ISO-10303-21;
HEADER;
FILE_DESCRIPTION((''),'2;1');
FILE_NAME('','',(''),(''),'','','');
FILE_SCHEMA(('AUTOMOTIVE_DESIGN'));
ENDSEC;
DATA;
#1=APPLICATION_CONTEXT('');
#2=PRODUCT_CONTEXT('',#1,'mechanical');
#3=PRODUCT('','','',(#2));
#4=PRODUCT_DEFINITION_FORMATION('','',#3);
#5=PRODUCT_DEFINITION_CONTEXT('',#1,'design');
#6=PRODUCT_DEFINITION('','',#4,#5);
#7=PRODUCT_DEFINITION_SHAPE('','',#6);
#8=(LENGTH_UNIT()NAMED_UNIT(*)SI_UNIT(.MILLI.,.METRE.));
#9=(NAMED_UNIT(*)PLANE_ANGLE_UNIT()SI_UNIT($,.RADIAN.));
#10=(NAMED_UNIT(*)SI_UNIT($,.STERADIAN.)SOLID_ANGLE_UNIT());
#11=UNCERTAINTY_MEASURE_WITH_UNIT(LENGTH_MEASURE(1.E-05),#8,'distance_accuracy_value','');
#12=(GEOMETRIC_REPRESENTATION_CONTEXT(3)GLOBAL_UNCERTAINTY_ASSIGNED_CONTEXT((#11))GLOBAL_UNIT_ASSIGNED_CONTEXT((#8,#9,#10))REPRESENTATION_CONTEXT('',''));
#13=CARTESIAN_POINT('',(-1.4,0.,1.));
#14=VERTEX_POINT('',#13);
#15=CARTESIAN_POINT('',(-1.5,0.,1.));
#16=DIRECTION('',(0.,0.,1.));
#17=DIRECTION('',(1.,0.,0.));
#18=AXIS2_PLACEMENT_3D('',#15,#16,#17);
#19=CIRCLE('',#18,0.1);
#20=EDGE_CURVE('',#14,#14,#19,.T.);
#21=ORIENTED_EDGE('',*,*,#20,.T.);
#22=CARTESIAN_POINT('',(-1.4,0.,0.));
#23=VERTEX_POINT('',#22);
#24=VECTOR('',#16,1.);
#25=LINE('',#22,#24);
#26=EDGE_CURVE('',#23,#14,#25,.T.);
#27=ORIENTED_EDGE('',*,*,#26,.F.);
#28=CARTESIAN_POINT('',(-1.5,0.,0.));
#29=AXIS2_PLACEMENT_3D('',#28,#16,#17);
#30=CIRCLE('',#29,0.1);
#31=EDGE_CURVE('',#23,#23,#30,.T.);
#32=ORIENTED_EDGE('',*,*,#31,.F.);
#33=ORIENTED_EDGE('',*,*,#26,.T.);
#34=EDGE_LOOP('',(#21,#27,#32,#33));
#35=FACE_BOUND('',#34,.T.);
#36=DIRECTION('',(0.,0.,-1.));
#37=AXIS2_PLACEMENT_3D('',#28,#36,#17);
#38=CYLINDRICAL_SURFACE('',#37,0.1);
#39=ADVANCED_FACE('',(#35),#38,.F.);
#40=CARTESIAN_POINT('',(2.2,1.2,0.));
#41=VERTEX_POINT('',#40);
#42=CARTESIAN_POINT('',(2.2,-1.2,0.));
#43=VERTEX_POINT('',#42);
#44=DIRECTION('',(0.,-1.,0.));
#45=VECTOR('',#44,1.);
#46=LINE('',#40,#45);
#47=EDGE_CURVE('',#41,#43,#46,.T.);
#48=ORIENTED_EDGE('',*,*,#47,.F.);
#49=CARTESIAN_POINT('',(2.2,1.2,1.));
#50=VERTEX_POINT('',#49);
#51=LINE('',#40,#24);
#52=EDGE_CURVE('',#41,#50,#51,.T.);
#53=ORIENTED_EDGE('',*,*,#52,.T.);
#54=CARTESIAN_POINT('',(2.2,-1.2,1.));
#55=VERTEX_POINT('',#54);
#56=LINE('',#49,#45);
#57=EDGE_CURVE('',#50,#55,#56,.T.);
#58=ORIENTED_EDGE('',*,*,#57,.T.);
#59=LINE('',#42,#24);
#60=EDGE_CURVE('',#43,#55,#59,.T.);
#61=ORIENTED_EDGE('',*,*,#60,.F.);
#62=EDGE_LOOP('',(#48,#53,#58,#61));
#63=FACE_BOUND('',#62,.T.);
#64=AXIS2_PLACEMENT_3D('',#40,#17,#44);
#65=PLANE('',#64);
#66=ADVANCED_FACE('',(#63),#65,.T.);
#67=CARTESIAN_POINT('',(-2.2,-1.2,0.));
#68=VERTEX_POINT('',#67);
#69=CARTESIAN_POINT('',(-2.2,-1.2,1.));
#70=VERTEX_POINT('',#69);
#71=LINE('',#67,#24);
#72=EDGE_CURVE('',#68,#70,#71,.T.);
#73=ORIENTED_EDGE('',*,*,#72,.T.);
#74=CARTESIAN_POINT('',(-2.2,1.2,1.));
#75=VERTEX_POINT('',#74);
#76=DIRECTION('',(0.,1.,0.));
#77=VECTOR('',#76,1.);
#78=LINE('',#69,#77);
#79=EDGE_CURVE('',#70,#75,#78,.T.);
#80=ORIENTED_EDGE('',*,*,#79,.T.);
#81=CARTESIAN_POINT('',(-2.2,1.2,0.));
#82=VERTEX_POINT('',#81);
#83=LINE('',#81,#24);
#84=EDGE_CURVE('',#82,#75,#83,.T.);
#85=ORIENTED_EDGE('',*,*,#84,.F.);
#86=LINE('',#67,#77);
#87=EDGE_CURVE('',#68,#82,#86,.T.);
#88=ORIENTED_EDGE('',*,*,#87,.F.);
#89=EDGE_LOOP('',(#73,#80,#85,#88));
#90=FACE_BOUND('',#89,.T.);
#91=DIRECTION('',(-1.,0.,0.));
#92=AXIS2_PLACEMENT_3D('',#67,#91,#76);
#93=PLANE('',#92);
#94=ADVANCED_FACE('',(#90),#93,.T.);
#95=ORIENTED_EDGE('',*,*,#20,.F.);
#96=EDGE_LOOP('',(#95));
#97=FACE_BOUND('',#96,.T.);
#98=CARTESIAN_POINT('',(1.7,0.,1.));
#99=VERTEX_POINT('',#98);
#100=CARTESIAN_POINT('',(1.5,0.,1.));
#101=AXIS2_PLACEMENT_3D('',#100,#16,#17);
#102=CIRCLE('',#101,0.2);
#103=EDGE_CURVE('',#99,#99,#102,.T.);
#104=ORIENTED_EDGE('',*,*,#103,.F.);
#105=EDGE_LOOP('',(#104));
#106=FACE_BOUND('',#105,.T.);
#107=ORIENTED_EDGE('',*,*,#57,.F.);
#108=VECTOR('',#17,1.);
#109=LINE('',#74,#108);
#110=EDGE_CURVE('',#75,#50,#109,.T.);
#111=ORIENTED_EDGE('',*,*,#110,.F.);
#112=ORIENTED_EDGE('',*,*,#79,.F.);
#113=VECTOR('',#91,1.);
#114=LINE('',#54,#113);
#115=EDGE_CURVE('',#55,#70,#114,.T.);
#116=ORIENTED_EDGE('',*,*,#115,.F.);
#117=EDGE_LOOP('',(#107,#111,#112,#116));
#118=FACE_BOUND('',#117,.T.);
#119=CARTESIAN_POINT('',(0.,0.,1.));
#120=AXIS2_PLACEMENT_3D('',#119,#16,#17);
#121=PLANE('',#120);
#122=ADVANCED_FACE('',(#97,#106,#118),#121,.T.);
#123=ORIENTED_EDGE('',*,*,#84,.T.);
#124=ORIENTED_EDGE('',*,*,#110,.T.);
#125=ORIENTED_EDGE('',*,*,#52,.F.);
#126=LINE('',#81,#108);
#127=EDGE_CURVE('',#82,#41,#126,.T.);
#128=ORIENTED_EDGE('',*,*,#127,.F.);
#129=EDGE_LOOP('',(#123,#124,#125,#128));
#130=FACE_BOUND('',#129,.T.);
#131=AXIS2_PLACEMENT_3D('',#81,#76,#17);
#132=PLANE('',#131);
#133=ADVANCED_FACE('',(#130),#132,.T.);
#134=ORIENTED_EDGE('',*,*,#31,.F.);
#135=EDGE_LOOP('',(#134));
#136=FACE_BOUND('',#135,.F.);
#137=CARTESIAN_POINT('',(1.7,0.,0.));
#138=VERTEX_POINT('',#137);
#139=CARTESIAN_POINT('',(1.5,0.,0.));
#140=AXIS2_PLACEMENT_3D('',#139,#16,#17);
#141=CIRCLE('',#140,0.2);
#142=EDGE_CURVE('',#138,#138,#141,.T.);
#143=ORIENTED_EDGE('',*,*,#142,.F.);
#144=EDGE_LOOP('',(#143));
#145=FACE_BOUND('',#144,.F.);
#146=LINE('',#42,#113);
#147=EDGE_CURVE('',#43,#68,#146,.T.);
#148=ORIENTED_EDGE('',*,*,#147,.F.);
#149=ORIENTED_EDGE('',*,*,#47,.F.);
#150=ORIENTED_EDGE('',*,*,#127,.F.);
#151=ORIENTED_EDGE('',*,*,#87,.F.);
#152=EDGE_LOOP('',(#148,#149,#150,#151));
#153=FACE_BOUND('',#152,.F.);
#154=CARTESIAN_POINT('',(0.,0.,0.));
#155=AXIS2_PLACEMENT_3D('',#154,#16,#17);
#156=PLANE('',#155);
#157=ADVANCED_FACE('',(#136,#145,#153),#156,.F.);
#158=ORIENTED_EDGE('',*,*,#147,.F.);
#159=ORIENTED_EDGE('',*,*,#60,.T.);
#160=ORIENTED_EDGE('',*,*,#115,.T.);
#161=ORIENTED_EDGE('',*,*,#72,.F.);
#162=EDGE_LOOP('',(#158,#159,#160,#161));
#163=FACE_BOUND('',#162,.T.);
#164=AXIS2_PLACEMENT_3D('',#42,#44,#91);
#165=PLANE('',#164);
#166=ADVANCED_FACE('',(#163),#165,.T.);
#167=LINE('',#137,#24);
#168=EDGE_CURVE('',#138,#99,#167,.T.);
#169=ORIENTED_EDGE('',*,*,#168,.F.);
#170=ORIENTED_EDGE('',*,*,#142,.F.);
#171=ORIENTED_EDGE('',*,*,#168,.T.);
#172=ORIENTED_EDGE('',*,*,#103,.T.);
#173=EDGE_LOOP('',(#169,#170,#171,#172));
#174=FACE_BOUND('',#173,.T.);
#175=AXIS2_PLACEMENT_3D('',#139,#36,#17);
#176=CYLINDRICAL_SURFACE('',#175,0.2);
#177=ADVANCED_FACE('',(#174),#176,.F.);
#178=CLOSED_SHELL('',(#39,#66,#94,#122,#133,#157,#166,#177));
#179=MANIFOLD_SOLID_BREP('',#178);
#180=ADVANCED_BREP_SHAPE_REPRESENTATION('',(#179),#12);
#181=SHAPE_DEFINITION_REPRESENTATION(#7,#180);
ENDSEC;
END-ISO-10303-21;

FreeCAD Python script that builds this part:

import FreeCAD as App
import Part
import Sketcher
Q = App.Units.Quantity


def add_polygon(sketch, points):
    """Adds a closed chain of lines whose ends are joined by coincident constraints."""
    first, n = sketch.GeometryCount, len(points)
    for a, b in zip(points, points[1:] + points[:1]):
        sketch.addGeometry(Part.LineSegment(App.Vector(*a, 0), App.Vector(*b, 0)), False)
    for i in range(n):
        sketch.addConstraint(Sketcher.Constraint("Coincident", first + i, 2, first + (i + 1) % n, 1))

doc = App.newDocument("Part")
body = doc.addObject("PartDesign::Body", "Body")

# Sketch on XY plane
sketch1 = body.newObject("Sketcher::SketchObject", "Sketch")
sketch1.AttachmentSupport = (doc.getObject("XY_Plane"), [""])
sketch1.MapMode = "FlatFace"
add_polygon(sketch1, [(2.2, 1.2), (-2.2, 1.2), (-2.2, -1.2), (2.2, -1.2)])  # lines 0-3
sketch1.addGeometry(Part.Circle(App.Vector(-1.5, 0, 0), App.Vector(0, 0, 1), 0.1), False)  # 4
sketch1.addGeometry(Part.Circle(App.Vector(1.5, 0, 0), App.Vector(0, 0, 1), 0.2), False)  # 5
sketch1.addConstraint(Sketcher.Constraint("Horizontal", 0))
sketch1.addConstraint(Sketcher.Constraint("Vertical", 1))
sketch1.addConstraint(Sketcher.Constraint("Horizontal", 2))
sketch1.addConstraint(Sketcher.Constraint("Vertical", 3))
sketch1.addConstraint(Sketcher.Constraint("Symmetric", 4, 3, 5, 3, -1, 1))
sketch1.addConstraint(Sketcher.Constraint("Symmetric", 0, 2, 2, 2, -1, 1))
sketch1.addConstraint(Sketcher.Constraint("PointOnObject", 4, 3, -1))
sketch1.addConstraint(Sketcher.Constraint("Diameter", 4, Q("0.2 mm")))
sketch1.addConstraint(Sketcher.Constraint("Diameter", 5, Q("0.4 mm")))
sketch1.addConstraint(Sketcher.Constraint("DistanceX", 0, 2, 0, 1, Q("4.4 mm")))
sketch1.addConstraint(Sketcher.Constraint("DistanceY", 1, 2, 1, 1, Q("2.4 mm")))
sketch1.addConstraint(Sketcher.Constraint("DistanceX", 4, 3, 5, 3, Q("3 mm")))
pad1 = body.newObject("PartDesign::Pad", "Pad")
pad1.Profile = sketch1
pad1.Length = 1

doc.recompute()
